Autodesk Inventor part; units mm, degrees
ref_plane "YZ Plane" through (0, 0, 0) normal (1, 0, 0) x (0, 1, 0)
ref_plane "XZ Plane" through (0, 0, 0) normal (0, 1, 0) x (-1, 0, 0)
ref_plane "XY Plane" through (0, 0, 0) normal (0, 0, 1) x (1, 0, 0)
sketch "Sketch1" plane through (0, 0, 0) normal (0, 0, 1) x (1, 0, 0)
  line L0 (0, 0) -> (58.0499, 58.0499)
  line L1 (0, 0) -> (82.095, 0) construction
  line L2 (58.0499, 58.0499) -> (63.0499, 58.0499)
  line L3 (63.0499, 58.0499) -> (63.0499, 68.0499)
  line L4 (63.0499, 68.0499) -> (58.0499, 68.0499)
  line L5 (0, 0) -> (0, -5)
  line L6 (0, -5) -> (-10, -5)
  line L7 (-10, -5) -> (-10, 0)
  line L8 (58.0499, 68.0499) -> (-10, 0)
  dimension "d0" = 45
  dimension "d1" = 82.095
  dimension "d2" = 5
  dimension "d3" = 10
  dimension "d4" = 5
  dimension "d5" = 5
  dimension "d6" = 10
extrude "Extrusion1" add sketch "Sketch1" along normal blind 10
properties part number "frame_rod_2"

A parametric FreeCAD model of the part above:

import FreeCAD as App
import Part
import Sketcher

V = App.Vector
Q = App.Units.Quantity


def add_polygon(sketch, points):
    """Adds a closed chain of lines whose ends are joined by coincident constraints."""
    first, n = sketch.GeometryCount, len(points)
    for a, b in zip(points, points[1:] + points[:1]):
        sketch.addGeometry(Part.LineSegment(App.Vector(*a, 0), App.Vector(*b, 0)), False)
    for i in range(n):
        sketch.addConstraint(Sketcher.Constraint("Coincident", first + i, 2, first + (i + 1) % n, 1))

doc = App.newDocument("Part")
params = doc.addObject("Spreadsheet::Sheet", "Params")
for row, (alias, value) in enumerate([
    ("sketch1_width", "5 mm"),
    ("sketch1_width2", "10 mm"),
    ("pad1_length", "10 mm"),
], start=1):
    params.set(f"A{row}", alias)
    params.set(f"B{row}", "=" + value)
    params.setAlias(f"B{row}", alias)

body = doc.addObject("PartDesign::Body", "Body")

sketch1 = doc.addObject("Sketcher::SketchObject", "Sketch")
body.addObject(sketch1)
sketch1.AttachmentSupport = (doc.XY_Plane, [""])
sketch1.MapMode = "FlatFace"
add_polygon(sketch1, [(0, -5), (0, 0), (58, 58), (63, 58), (63, 68), (58, 68), (-10, 0), (-10, -5)])
sketch1.addConstraint([
    Sketcher.Constraint("Vertical", 0),
    Sketcher.Constraint("Horizontal", 2),
    Sketcher.Constraint("Vertical", 3),
    Sketcher.Constraint("Horizontal", 4),
    Sketcher.Constraint("Vertical", 6),
    Sketcher.Constraint("Horizontal", 7),
    Sketcher.Constraint("Coincident", 0, 2, -1, 1),
    Sketcher.Constraint("PointOnObject", 5, 2, -1),
    Sketcher.Constraint("Parallel", 1, 5),
    Sketcher.Constraint("Vertical", 1, 2, 4, 2),
    Sketcher.Constraint("Equal", 4, 0),
    Sketcher.Constraint("Equal", 7, 3),
    Sketcher.Constraint("DistanceX", 2, 1, 2, 2, Q("5 mm")),
    Sketcher.Constraint("DistanceX", 7, 1, 7, 2, Q("10 mm")),
    Sketcher.Constraint("Distance", 1, Q("82.095 mm")),
])
sketch1.setExpression("Constraints[20]", "Params.sketch1_width")
sketch1.setExpression("Constraints[21]", "Params.sketch1_width2")
pad1 = doc.addObject("PartDesign::Pad", "Pad")
body.addObject(pad1)
pad1.Profile = sketch1
pad1.setExpression("Length", "Params.pad1_length")

doc.recompute()
